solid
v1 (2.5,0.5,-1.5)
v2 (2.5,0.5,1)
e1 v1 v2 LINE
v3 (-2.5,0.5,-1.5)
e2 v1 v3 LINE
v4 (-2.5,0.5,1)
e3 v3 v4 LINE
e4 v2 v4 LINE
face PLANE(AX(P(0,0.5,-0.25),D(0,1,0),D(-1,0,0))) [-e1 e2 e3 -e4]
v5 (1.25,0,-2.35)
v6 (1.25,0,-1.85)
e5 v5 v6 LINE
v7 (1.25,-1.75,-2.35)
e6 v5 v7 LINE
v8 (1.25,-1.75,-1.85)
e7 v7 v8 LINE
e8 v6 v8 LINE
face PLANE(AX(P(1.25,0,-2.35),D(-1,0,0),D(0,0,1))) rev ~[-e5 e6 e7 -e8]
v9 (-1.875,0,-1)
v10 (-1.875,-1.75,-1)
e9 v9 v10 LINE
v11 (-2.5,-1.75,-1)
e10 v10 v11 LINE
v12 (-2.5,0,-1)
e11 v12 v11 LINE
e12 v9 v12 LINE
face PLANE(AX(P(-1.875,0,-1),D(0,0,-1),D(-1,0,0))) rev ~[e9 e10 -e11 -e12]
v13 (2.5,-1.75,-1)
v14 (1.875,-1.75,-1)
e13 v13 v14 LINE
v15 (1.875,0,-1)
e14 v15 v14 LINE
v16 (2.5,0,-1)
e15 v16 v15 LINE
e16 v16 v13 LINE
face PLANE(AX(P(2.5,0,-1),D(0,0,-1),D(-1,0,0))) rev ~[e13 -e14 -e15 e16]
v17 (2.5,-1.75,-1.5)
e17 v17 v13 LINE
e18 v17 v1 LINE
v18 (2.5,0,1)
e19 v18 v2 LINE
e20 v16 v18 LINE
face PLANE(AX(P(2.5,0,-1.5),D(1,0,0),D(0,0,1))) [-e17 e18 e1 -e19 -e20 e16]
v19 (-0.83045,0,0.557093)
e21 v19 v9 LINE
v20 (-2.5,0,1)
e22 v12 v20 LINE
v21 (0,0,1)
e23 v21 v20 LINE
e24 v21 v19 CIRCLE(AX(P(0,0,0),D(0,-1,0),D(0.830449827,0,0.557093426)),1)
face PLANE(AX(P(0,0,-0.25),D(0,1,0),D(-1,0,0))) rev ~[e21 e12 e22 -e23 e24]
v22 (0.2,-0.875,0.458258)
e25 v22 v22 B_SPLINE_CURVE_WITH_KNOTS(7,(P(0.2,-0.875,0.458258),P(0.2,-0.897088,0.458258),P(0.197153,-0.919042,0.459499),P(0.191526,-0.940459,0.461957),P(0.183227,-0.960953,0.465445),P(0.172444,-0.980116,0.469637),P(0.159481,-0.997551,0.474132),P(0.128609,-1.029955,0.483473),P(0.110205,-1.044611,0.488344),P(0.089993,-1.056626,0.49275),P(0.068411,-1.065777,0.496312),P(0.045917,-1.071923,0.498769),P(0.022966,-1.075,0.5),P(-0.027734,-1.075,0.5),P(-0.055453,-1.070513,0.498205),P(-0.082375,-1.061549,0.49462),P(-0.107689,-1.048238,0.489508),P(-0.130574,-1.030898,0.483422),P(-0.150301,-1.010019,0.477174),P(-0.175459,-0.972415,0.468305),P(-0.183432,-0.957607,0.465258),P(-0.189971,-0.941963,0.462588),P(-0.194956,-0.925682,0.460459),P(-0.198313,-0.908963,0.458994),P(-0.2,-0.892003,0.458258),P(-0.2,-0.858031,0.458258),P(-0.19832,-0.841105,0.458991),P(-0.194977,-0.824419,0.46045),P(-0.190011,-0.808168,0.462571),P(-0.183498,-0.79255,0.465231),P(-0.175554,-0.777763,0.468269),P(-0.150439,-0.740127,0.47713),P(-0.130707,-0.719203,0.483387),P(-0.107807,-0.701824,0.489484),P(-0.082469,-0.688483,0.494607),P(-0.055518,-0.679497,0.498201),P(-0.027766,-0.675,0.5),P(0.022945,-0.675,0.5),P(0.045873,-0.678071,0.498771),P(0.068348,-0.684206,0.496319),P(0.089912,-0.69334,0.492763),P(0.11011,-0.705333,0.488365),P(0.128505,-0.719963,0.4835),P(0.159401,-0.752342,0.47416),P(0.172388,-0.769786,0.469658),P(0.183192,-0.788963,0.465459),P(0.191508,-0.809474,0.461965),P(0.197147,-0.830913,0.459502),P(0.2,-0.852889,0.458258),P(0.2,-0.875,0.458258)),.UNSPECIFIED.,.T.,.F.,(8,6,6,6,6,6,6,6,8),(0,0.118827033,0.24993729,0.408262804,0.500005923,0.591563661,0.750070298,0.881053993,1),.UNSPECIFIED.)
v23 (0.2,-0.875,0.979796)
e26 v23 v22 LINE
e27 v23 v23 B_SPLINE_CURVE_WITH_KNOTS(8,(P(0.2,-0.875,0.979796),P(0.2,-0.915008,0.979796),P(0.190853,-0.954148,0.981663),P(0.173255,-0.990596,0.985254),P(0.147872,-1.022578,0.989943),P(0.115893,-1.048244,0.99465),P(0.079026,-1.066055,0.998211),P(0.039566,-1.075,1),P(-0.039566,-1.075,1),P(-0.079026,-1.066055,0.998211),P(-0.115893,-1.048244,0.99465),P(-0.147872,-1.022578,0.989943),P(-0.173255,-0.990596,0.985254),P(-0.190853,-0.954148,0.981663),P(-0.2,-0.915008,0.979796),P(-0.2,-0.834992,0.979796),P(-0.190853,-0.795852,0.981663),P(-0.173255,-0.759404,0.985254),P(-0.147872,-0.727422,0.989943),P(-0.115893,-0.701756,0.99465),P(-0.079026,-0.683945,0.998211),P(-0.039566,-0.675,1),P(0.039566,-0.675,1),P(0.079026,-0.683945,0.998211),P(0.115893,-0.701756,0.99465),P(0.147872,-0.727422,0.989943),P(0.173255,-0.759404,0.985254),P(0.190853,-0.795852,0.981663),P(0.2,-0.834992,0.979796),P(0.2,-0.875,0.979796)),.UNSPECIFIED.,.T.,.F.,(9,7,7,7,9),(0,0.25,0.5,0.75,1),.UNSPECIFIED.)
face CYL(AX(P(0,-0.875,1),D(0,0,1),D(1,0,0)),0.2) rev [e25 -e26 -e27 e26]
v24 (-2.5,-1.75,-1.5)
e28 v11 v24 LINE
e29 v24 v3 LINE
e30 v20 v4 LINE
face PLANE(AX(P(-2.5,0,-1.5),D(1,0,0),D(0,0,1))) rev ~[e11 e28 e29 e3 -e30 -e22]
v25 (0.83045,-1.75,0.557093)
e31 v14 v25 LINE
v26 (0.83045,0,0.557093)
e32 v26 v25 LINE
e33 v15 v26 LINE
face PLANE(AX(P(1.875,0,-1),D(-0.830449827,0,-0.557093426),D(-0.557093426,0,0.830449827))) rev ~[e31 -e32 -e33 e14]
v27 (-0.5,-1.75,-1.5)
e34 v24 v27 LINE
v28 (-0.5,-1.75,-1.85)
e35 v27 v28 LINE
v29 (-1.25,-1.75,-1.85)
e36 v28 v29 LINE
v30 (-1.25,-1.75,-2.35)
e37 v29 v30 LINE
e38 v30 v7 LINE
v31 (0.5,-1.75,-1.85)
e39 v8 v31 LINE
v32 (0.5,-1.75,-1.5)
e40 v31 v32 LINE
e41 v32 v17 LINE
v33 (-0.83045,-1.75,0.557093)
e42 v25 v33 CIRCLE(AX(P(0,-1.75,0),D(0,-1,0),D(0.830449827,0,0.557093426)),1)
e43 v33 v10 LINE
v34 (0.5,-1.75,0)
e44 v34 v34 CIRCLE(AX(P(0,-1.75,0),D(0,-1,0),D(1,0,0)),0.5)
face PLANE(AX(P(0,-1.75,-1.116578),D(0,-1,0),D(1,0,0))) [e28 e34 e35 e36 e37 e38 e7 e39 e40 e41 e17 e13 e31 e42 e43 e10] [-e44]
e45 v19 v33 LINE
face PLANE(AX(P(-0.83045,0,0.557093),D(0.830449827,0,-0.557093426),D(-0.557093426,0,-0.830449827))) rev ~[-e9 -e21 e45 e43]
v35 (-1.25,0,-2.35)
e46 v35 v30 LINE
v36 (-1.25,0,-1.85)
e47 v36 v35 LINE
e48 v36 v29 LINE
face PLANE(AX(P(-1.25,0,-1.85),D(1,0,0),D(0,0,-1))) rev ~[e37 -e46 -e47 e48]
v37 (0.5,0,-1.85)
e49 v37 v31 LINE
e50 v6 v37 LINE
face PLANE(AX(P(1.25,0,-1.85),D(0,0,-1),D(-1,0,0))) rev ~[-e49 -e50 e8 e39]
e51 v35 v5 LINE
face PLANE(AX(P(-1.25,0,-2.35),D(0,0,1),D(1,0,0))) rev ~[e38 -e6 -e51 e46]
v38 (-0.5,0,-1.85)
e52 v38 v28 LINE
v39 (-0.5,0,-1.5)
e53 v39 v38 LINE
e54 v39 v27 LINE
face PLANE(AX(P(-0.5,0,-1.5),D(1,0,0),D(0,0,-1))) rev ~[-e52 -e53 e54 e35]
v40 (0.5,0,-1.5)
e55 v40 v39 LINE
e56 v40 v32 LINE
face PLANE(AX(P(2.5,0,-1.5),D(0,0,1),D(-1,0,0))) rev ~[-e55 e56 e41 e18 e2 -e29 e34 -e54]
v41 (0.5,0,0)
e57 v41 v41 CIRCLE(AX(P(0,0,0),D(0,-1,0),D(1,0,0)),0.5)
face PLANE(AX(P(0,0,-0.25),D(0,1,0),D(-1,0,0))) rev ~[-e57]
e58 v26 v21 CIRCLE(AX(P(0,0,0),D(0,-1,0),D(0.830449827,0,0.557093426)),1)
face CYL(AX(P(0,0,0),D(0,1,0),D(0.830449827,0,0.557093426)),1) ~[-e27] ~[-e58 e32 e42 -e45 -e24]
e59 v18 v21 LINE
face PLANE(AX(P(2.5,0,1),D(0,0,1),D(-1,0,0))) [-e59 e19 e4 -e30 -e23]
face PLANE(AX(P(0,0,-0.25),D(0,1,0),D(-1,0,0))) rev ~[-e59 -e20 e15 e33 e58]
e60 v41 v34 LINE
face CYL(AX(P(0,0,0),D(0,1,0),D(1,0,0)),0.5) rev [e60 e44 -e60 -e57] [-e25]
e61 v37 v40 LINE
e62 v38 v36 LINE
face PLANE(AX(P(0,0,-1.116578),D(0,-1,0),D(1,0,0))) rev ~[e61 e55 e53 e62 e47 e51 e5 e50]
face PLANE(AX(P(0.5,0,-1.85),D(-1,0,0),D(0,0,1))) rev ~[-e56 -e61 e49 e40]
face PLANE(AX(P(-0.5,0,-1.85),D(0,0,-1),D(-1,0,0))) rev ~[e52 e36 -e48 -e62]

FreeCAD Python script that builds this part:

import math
import FreeCAD as App
import Part
import Sketcher

V = App.Vector


def add_polygon(sketch, points):
    """Adds a closed chain of lines whose ends are joined by coincident constraints."""
    first, n = sketch.GeometryCount, len(points)
    for a, b in zip(points, points[1:] + points[:1]):
        sketch.addGeometry(Part.LineSegment(App.Vector(*a, 0), App.Vector(*b, 0)), False)
    for i in range(n):
        sketch.addConstraint(Sketcher.Constraint("Coincident", first + i, 2, first + (i + 1) % n, 1))

doc = App.newDocument("Part")
params = doc.addObject("Spreadsheet::Sheet", "Params")
for row, (alias, value) in enumerate([
    ("sketch1_diameter", "1 mm"),
    ("sketch1_radius", "1 mm"),
    ("sketch1_width", "2 mm"),
    ("sketch1_width2", "2.5 mm"),
    ("sketch1_height", "0.5 mm"),
    ("pad1_length", "1.75 mm"),
    ("sketch2_width", "5 mm"),
    ("sketch2_height", "2.5 mm"),
    ("pad2_length", "0.5 mm"),
    ("sketch3_diameter", "0.4 mm"),
    ("pocket1_length", "0.542743 mm"),
], start=1):
    params.set(f"A{row}", alias)
    params.set(f"B{row}", "=" + value)
    params.setAlias(f"B{row}", alias)

body = doc.addObject("PartDesign::Body", "Body")

# Sketch on XZ plane
sketch1 = doc.addObject("Sketcher::SketchObject", "Sketch")
body.addObject(sketch1)
sketch1.AttachmentSupport = (doc.XZ_Plane, [""])
sketch1.MapMode = "FlatFace"
sketch1.addGeometry(Part.LineSegment(V(-2.5, -1, 0), V(-2.5, -1.5, 0)), False)
sketch1.addGeometry(Part.LineSegment(V(-2.5, -1.5, 0), V(-0.5, -1.5, 0)), False)
sketch1.addGeometry(Part.LineSegment(V(-0.5, -1.5, 0), V(-0.5, -1.85, 0)), False)
sketch1.addGeometry(Part.LineSegment(V(-0.5, -1.85, 0), V(-1.25, -1.85, 0)), False)
sketch1.addGeometry(Part.LineSegment(V(-1.25, -1.85, 0), V(-1.25, -2.35, 0)), False)
sketch1.addGeometry(Part.LineSegment(V(-1.25, -2.35, 0), V(1.25, -2.35, 0)), False)
sketch1.addGeometry(Part.LineSegment(V(1.25, -2.35, 0), V(1.25, -1.85, 0)), False)
sketch1.addGeometry(Part.LineSegment(V(1.25, -1.85, 0), V(0.5, -1.85, 0)), False)
sketch1.addGeometry(Part.LineSegment(V(0.5, -1.85, 0), V(0.5, -1.5, 0)), False)
sketch1.addGeometry(Part.LineSegment(V(0.5, -1.5, 0), V(2.5, -1.5, 0)), False)
sketch1.addGeometry(Part.LineSegment(V(2.5, -1.5, 0), V(2.5, -1, 0)), False)
sketch1.addGeometry(Part.LineSegment(V(2.5, -1, 0), V(1.88, -1, 0)), False)
sketch1.addGeometry(Part.LineSegment(V(1.88, -1, 0), V(0.83, 0.56, 0)), False)
sketch1.addGeometry(Part.ArcOfCircle(Part.Circle(V(0, 0, 0), V(0, 0, 1), 1), math.radians(34), math.radians(146)), False)
sketch1.addGeometry(Part.LineSegment(V(-0.83, 0.56, 0), V(-1.88, -1, 0)), False)
sketch1.addGeometry(Part.LineSegment(V(-1.88, -1, 0), V(-2.5, -1, 0)), False)
sketch1.addGeometry(Part.Circle(V(0, 0, 0), V(0, 0, 1), 0.5), False)
sketch1.addConstraint(Sketcher.Constraint("Coincident", 0, 2, 1, 1))
sketch1.addConstraint(Sketcher.Constraint("Coincident", 1, 2, 2, 1))
sketch1.addConstraint(Sketcher.Constraint("Coincident", 2, 2, 3, 1))
sketch1.addConstraint(Sketcher.Constraint("Coincident", 3, 2, 4, 1))
sketch1.addConstraint(Sketcher.Constraint("Coincident", 4, 2, 5, 1))
sketch1.addConstraint(Sketcher.Constraint("Coincident", 5, 2, 6, 1))
sketch1.addConstraint(Sketcher.Constraint("Coincident", 6, 2, 7, 1))
sketch1.addConstraint(Sketcher.Constraint("Coincident", 7, 2, 8, 1))
sketch1.addConstraint(Sketcher.Constraint("Coincident", 8, 2, 9, 1))
sketch1.addConstraint(Sketcher.Constraint("Coincident", 9, 2, 10, 1))
sketch1.addConstraint(Sketcher.Constraint("Coincident", 10, 2, 11, 1))
sketch1.addConstraint(Sketcher.Constraint("Coincident", 11, 2, 12, 1))
sketch1.addConstraint(Sketcher.Constraint("Tangent", 12, 2, 13, 1))
sketch1.addConstraint(Sketcher.Constraint("Tangent", 13, 2, 14, 1))
sketch1.addConstraint(Sketcher.Constraint("Coincident", 14, 2, 15, 1))
sketch1.addConstraint(Sketcher.Constraint("Coincident", 15, 2, 0, 1))
sketch1.addConstraint(Sketcher.Constraint("Vertical", 0))
sketch1.addConstraint(Sketcher.Constraint("Horizontal", 1))
sketch1.addConstraint(Sketcher.Constraint("Vertical", 2))
sketch1.addConstraint(Sketcher.Constraint("Horizontal", 3))
sketch1.addConstraint(Sketcher.Constraint("Vertical", 4))
sketch1.addConstraint(Sketcher.Constraint("Horizontal", 5))
sketch1.addConstraint(Sketcher.Constraint("Vertical", 6))
sketch1.addConstraint(Sketcher.Constraint("Horizontal", 7))
sketch1.addConstraint(Sketcher.Constraint("Vertical", 8))
sketch1.addConstraint(Sketcher.Constraint("Horizontal", 9))
sketch1.addConstraint(Sketcher.Constraint("Vertical", 10))
sketch1.addConstraint(Sketcher.Constraint("Horizontal", 11))
sketch1.addConstraint(Sketcher.Constraint("Horizontal", 15))
sketch1.addConstraint(Sketcher.Constraint("Coincident", 13, 3, -1, 1))
sketch1.addConstraint(Sketcher.Constraint("Coincident", 16, 3, -1, 1))
sketch1.addConstraint(Sketcher.Constraint("Symmetric", 3, 2, 6, 2, -2))
sketch1.addConstraint(Sketcher.Constraint("Symmetric", 1, 2, 8, 2, -2))
sketch1.addConstraint(Sketcher.Constraint("Symmetric", 11, 2, 14, 2, -2))
sketch1.addConstraint(Sketcher.Constraint("Equal", 1, 9))
sketch1.addConstraint(Sketcher.Constraint("Equal", 0, 4))
sketch1.addConstraint(Sketcher.Constraint("Diameter", 16, 1.0))
sketch1.addConstraint(Sketcher.Constraint("Radius", 13, 1.0))
sketch1.addConstraint(Sketcher.Constraint("DistanceX", 1, 1, 1, 2, 2.0))
sketch1.addConstraint(Sketcher.Constraint("DistanceX", 5, 1, 5, 2, 2.5))
sketch1.addConstraint(Sketcher.Constraint("DistanceY", 0, 2, 0, 1, 0.5))
sketch1.addConstraint(Sketcher.Constraint("DistanceY", 10, 2, -1, 1, 1.0))
sketch1.addConstraint(Sketcher.Constraint("DistanceX", 2, 2, 7, 2, 1.0))
sketch1.addConstraint(Sketcher.Constraint("DistanceY", 2, 2, 2, 1, 0.35))
sketch1.addConstraint(Sketcher.Constraint("DistanceX", 11, 2, 11, 1, 0.625))
sketch1.setExpression("Constraints[36]", "Params.sketch1_diameter")
sketch1.setExpression("Constraints[37]", "Params.sketch1_radius")
sketch1.setExpression("Constraints[38]", "Params.sketch1_width")
sketch1.setExpression("Constraints[39]", "Params.sketch1_width2")
sketch1.setExpression("Constraints[40]", "Params.sketch1_height")
pad1 = doc.addObject("PartDesign::Pad", "Pad")
body.addObject(pad1)
pad1.Profile = sketch1
pad1.setExpression("Length", "Params.pad1_length")

# Sketch on XZ plane
sketch2 = doc.addObject("Sketcher::SketchObject", "Sketch001")
body.addObject(sketch2)
sketch2.AttachmentSupport = (doc.XZ_Plane, [""])
sketch2.MapMode = "FlatFace"
add_polygon(sketch2, [(2.5, 1), (2.5, -1.5), (-2.5, -1.5), (-2.5, 1)])  # lines 0-3
sketch2.addConstraint(Sketcher.Constraint("Vertical", 0))
sketch2.addConstraint(Sketcher.Constraint("Horizontal", 1))
sketch2.addConstraint(Sketcher.Constraint("Vertical", 2))
sketch2.addConstraint(Sketcher.Constraint("Horizontal", 3))
sketch2.addConstraint(Sketcher.Constraint("DistanceX", 1, 2, 1, 1, 5.0))
sketch2.addConstraint(Sketcher.Constraint("DistanceY", 0, 2, 0, 1, 2.5))
sketch2.addConstraint(Sketcher.Constraint("DistanceY", -1, 1, 2, 2, 1.0))
sketch2.addConstraint(Sketcher.Constraint("DistanceX", -1, 1, 0, 2, 2.5))
sketch2.setExpression("Constraints[8]", "Params.sketch2_width")
sketch2.setExpression("Constraints[9]", "Params.sketch2_height")
pad2 = doc.addObject("PartDesign::Pad", "Pad001")
body.addObject(pad2)
pad2.Profile = sketch2
pad2.setExpression("Length", "Params.pad2_length")
pad2.Reversed = True

# Sketch on XY plane
sketch3 = doc.addObject("Sketcher::SketchObject", "Sketch002")
body.addObject(sketch3)
sketch3.AttachmentSupport = (doc.XY_Plane, [""])
sketch3.MapMode = "FlatFace"
sketch3.AttachmentOffset = App.Placement(V(0, 0, 1), App.Rotation())
sketch3.addGeometry(Part.Circle(V(0, -0.88, 0), V(0, 0, 1), 0.2), False)
sketch3.addConstraint(Sketcher.Constraint("PointOnObject", 0, 3, -2))
sketch3.addConstraint(Sketcher.Constraint("Diameter", 0, 0.4))
sketch3.addConstraint(Sketcher.Constraint("DistanceY", 0, 3, -1, 1, 0.875))
sketch3.setExpression("Constraints[1]", "Params.sketch3_diameter")
pocket1 = doc.addObject("PartDesign::Pocket", "Pocket")
body.addObject(pocket1)
pocket1.Profile = sketch3
pocket1.setExpression("Length", "Params.pocket1_length")

doc.recompute()
